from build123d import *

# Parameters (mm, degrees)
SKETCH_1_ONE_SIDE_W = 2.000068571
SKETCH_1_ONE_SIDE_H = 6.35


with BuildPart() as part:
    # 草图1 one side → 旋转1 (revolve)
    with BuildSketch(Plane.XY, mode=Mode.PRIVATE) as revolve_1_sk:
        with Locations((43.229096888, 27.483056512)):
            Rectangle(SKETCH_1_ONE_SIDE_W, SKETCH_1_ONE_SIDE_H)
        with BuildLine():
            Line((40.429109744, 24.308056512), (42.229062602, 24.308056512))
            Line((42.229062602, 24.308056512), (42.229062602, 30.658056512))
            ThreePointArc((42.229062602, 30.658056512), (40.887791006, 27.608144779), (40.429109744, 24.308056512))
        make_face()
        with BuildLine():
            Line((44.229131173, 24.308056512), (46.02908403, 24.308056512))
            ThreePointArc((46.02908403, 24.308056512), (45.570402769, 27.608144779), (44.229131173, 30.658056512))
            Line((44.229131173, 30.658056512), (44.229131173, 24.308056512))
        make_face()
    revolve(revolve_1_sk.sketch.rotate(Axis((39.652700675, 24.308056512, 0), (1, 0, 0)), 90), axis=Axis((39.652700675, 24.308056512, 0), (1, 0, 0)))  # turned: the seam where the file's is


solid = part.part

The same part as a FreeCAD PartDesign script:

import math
import FreeCAD as App
import Part
import Sketcher
from FreeCAD import Vector

doc = App.newDocument("Part")
body = doc.addObject("PartDesign::Body", "Body")

# Sketch on XY plane
sketch1 = doc.addObject("Sketcher::SketchObject", "Sketch")
body.addObject(sketch1)
sketch1.AttachmentSupport = (doc.XY_Plane, [""])
sketch1.MapMode = "FlatFace"
sketch1.addGeometry(Part.LineSegment(Vector(44.2, 30.7, 0), Vector(42.2, 30.7, 0)), False)
sketch1.addGeometry(Part.ArcOfCircle(Part.Circle(Vector(52.5, 24.3, 0), Vector(0, 0, 1), 12.1), math.radians(148), math.radians(180)), False)
sketch1.addGeometry(Part.LineSegment(Vector(40.4, 24.3, 0), Vector(46, 24.3, 0)), False)
sketch1.addGeometry(Part.ArcOfCircle(Part.Circle(Vector(33.9, 24.3, 0), Vector(0, 0, 1), 12.1), math.radians(0), math.radians(32)), False)
sketch1.addGeometry(Part.LineSegment(Vector(33.9, 24.3, 0), Vector(52.5, 24.3, 0)), True)  # axis
sketch1.addConstraint(Sketcher.Constraint("Coincident", 0, 2, 1, 1))
sketch1.addConstraint(Sketcher.Constraint("Coincident", 1, 2, 2, 1))
sketch1.addConstraint(Sketcher.Constraint("Coincident", 2, 2, 3, 1))
sketch1.addConstraint(Sketcher.Constraint("Coincident", 3, 2, 0, 1))
sketch1.addConstraint(Sketcher.Constraint("Horizontal", 0))
sketch1.addConstraint(Sketcher.Constraint("Horizontal", 2))
sketch1.addConstraint(Sketcher.Constraint("Horizontal", 4))
sketch1.addConstraint(Sketcher.Constraint("Coincident", 4, 1, 3, 3))
sketch1.addConstraint(Sketcher.Constraint("Coincident", 4, 2, 1, 3))
sketch1.addConstraint(Sketcher.Constraint("Equal", 1, 3))
sketch1.addConstraint(Sketcher.Constraint("Horizontal", 3, 3, 1, 2))
sketch1.addConstraint(Sketcher.Constraint("DistanceY", 3, 3, 0, 2, 6.35))
sketch1.addConstraint(Sketcher.Constraint("Radius", 1, 12.100964))
sketch1.addConstraint(Sketcher.Constraint("DistanceX", 0, 2, 0, 1, 2.000069))
sketch1.addConstraint(Sketcher.Constraint("DistanceX", -1, 1, 3, 3, 33.92812))
sketch1.addConstraint(Sketcher.Constraint("DistanceY", -1, 1, 1, 3, 24.308057))
revolution = doc.addObject("PartDesign::Revolution", "Revolution")
body.addObject(revolution)
revolution.Profile = sketch1
revolution.ReferenceAxis = (sketch1, ["Axis0"])
revolution.Angle = 360

doc.recompute()
